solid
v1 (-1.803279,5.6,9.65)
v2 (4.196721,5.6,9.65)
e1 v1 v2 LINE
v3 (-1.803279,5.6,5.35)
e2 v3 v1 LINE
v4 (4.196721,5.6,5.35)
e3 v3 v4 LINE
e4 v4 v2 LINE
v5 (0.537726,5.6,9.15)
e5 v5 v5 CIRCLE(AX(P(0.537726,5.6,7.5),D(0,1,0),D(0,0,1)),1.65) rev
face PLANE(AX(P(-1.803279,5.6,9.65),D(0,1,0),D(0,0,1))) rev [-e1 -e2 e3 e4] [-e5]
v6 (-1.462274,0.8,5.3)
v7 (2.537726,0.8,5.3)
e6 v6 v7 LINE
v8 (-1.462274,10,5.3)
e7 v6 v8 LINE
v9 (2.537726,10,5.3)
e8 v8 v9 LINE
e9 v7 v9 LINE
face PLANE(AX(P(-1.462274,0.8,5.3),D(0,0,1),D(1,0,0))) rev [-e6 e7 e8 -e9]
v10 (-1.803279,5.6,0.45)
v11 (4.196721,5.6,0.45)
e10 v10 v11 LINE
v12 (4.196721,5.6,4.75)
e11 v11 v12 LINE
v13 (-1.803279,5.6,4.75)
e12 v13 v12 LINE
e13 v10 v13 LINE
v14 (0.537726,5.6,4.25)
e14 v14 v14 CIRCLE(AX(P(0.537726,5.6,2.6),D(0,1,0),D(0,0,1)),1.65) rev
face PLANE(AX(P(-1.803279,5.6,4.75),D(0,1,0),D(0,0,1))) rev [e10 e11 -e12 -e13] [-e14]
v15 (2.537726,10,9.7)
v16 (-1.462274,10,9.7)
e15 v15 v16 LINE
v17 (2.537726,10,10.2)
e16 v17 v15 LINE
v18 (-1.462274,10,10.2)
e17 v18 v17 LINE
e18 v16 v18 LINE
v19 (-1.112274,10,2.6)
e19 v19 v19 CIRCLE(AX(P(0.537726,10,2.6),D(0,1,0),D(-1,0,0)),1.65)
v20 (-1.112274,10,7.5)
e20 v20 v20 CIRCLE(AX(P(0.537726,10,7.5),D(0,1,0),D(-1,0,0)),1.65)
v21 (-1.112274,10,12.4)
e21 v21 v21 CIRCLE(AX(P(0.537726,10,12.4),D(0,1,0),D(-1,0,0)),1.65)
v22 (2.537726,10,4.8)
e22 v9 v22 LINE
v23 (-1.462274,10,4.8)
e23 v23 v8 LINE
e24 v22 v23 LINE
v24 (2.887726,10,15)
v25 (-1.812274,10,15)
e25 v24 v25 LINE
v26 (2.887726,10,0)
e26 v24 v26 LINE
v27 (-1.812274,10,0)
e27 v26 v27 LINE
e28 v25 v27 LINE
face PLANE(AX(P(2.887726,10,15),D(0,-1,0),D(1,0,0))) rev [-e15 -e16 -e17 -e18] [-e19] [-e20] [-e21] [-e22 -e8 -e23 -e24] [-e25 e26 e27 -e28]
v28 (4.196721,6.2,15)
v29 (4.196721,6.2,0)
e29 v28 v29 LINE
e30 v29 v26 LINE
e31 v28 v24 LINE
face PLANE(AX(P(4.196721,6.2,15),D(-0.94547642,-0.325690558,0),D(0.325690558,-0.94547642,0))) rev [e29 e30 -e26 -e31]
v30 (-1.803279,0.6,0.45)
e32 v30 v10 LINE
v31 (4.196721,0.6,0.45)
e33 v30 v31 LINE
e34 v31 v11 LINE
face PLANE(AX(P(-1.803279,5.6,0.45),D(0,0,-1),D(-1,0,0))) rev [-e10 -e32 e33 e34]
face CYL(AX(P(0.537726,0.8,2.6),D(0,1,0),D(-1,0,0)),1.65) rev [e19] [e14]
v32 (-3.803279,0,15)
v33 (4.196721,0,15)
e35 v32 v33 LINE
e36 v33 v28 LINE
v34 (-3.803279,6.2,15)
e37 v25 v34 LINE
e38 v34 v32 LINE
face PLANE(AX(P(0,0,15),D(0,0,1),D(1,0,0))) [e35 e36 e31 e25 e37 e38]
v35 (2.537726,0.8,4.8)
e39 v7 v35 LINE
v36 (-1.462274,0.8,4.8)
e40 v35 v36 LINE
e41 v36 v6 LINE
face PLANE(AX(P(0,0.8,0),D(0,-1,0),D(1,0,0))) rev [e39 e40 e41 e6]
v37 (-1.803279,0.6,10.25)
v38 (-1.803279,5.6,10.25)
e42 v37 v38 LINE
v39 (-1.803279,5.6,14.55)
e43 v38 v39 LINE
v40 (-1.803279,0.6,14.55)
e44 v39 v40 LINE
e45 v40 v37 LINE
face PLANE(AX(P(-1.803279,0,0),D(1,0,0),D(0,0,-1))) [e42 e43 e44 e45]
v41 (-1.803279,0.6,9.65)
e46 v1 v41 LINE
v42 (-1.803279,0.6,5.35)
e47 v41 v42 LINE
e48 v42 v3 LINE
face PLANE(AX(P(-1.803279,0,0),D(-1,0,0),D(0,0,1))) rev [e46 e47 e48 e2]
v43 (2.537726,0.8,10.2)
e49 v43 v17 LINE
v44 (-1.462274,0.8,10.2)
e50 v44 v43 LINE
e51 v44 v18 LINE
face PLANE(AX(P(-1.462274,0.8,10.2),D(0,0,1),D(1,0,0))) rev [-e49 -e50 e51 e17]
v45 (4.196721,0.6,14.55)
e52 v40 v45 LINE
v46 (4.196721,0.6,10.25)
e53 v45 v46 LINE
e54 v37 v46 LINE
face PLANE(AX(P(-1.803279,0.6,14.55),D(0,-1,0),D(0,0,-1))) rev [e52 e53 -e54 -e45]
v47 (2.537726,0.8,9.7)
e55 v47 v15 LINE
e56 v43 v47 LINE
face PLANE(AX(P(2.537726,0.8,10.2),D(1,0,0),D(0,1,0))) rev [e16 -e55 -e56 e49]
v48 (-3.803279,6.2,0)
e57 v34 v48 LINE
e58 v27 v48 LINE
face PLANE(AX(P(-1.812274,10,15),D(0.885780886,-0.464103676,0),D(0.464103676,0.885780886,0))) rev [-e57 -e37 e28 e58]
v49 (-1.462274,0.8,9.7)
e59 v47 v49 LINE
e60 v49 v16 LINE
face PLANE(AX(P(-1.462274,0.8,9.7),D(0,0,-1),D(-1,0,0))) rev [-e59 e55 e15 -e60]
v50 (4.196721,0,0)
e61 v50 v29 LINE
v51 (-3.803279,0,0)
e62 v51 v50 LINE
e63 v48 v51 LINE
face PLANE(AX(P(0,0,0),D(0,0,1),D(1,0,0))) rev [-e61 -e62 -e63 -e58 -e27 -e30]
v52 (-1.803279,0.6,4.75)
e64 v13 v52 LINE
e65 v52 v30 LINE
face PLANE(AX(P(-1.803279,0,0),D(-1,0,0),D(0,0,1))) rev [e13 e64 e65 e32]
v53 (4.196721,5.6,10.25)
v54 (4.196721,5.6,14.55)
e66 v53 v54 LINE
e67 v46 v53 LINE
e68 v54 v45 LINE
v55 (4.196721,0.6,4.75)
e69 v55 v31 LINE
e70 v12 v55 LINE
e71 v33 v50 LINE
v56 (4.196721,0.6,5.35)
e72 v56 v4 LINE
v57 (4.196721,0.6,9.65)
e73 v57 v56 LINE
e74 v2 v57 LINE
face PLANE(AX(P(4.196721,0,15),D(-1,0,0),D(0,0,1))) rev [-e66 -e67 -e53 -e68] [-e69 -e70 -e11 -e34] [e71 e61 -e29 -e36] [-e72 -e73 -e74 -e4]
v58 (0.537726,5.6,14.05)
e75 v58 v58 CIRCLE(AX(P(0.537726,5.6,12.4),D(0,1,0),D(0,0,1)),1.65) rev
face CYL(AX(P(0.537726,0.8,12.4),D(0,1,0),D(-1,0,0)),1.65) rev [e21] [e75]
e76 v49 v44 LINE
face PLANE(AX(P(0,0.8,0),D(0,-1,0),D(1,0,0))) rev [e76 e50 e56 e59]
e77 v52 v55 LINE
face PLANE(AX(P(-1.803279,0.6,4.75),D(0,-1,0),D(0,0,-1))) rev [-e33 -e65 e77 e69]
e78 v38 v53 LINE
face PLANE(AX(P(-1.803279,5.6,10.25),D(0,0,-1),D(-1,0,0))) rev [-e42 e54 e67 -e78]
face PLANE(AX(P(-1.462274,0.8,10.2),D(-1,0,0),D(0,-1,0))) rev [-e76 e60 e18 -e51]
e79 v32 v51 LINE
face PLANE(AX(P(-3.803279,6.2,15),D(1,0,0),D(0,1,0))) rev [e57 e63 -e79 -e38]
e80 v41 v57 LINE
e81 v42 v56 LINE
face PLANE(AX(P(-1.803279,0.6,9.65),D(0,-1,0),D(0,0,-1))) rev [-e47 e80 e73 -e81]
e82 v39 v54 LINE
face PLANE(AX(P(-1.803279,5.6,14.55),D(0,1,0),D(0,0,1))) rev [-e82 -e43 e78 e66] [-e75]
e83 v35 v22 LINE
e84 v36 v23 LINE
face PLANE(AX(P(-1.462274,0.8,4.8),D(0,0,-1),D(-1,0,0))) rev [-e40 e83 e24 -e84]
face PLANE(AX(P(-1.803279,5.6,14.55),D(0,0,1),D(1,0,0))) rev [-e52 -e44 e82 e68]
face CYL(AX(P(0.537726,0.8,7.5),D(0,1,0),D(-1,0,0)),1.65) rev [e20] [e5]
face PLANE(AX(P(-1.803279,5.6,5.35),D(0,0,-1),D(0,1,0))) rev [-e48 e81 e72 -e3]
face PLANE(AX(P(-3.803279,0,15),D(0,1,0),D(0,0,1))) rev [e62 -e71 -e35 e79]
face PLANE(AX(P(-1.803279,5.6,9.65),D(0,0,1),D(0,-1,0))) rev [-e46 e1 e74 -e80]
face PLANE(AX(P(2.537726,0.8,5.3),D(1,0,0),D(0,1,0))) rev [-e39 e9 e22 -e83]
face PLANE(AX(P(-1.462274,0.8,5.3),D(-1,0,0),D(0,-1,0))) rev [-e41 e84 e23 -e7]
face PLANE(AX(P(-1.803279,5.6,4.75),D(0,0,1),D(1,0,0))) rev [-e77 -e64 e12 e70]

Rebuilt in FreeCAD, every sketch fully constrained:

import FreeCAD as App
import Part
import Sketcher
from FreeCAD import Vector
Q = App.Units.Quantity

doc = App.newDocument("Part")
body = doc.addObject("PartDesign::Body", "Body")

# Sketch on XY plane
sketch1 = doc.addObject("Sketcher::SketchObject", "Sketch")
body.addObject(sketch1)
sketch1.AttachmentSupport = (doc.XY_Plane, [""])
sketch1.MapMode = "FlatFace"
sketch1.addGeometry([
    Part.LineSegment(Vector(-3.8, 0, 0), Vector(4.2, 0, 0)),  # 0
    Part.LineSegment(Vector(4.2, 0, 0), Vector(4.2, 6.2, 0)),  # 1
    Part.LineSegment(Vector(4.2, 6.2, 0), Vector(2.9, 10, 0)),  # 2
    Part.LineSegment(Vector(2.9, 10, 0), Vector(-1.8, 10, 0)),  # 3
    Part.LineSegment(Vector(-1.8, 10, 0), Vector(-3.8, 6.2, 0)),  # 4
    Part.LineSegment(Vector(-3.8, 6.2, 0), Vector(-3.8, 0, 0)),  # 5
], False)
sketch1.addConstraint([
    Sketcher.Constraint("Coincident", 0, 2, 1, 1),
    Sketcher.Constraint("Coincident", 1, 2, 2, 1),
    Sketcher.Constraint("Coincident", 2, 2, 3, 1),
    Sketcher.Constraint("Coincident", 3, 2, 4, 1),
    Sketcher.Constraint("Coincident", 4, 2, 5, 1),
    Sketcher.Constraint("Coincident", 5, 2, 0, 1),
    Sketcher.Constraint("Horizontal", 0),
    Sketcher.Constraint("Vertical", 1),
    Sketcher.Constraint("Horizontal", 3),
    Sketcher.Constraint("Vertical", 5),
    Sketcher.Constraint("PointOnObject", 0, 2, -1),
    Sketcher.Constraint("Horizontal", 1, 2, 4, 2),
    Sketcher.Constraint("DistanceX", 0, 1, 0, 2, Q("8 mm")),
    Sketcher.Constraint("DistanceX", 3, 2, 3, 1, Q("4.7 mm")),
    Sketcher.Constraint("DistanceY", 1, 1, 1, 2, Q("6.2 mm")),
    Sketcher.Constraint("DistanceY", -1, 1, 2, 2, Q("10 mm")),
    Sketcher.Constraint("Distance", 4, Q("4.29 mm")),
    Sketcher.Constraint("DistanceX", -1, 1, 0, 2, Q("4.196721 mm")),
])
pad1 = doc.addObject("PartDesign::Pad", "Pad")
body.addObject(pad1)
pad1.Profile = sketch1
pad1.Length = 15

# Sketch on XZ plane
sketch2 = doc.addObject("Sketcher::SketchObject", "Sketch001")
body.addObject(sketch2)
sketch2.AttachmentSupport = (doc.XZ_Plane, [""])
sketch2.MapMode = "FlatFace"
sketch2.AttachmentOffset = App.Placement(Vector(0, 0, -10), App.Rotation())
sketch2.addGeometry([
    Part.Circle(Vector(0.5, 12.4, 0), Vector(0, 0, 1), 1.6),  # 0
    Part.Circle(Vector(0.5, 7.5, 0), Vector(0, 0, 1), 1.6),  # 1
    Part.Circle(Vector(0.5, 2.6, 0), Vector(0, 0, 1), 1.6),  # 2
    Part.LineSegment(Vector(-1.5, 9.7, 0), Vector(-1.5, 10.2, 0)),  # 3
    Part.LineSegment(Vector(-1.5, 10.2, 0), Vector(2.5, 10.2, 0)),  # 4
    Part.LineSegment(Vector(2.5, 10.2, 0), Vector(2.5, 9.7, 0)),  # 5
    Part.LineSegment(Vector(2.5, 9.7, 0), Vector(-1.5, 9.7, 0)),  # 6
    Part.LineSegment(Vector(-1.5, 4.8, 0), Vector(-1.5, 5.3, 0)),  # 7
    Part.LineSegment(Vector(-1.5, 5.3, 0), Vector(2.5, 5.3, 0)),  # 8
    Part.LineSegment(Vector(2.5, 5.3, 0), Vector(2.5, 4.8, 0)),  # 9
    Part.LineSegment(Vector(2.5, 4.8, 0), Vector(-1.5, 4.8, 0)),  # 10
], False)
sketch2.addConstraint([
    Sketcher.Constraint("Coincident", 3, 2, 4, 1),
    Sketcher.Constraint("Coincident", 4, 2, 5, 1),
    Sketcher.Constraint("Coincident", 5, 2, 6, 1),
    Sketcher.Constraint("Coincident", 6, 2, 3, 1),
    Sketcher.Constraint("Coincident", 7, 2, 8, 1),
    Sketcher.Constraint("Coincident", 8, 2, 9, 1),
    Sketcher.Constraint("Coincident", 9, 2, 10, 1),
    Sketcher.Constraint("Coincident", 10, 2, 7, 1),
    Sketcher.Constraint("Vertical", 3),
    Sketcher.Constraint("Horizontal", 4),
    Sketcher.Constraint("Vertical", 5),
    Sketcher.Constraint("Horizontal", 6),
    Sketcher.Constraint("Vertical", 7),
    Sketcher.Constraint("Horizontal", 8),
    Sketcher.Constraint("Vertical", 9),
    Sketcher.Constraint("Horizontal", 10),
    Sketcher.Constraint("Equal", 0, 1),
    Sketcher.Constraint("Equal", 1, 2),
    Sketcher.Constraint("Vertical", 0, 3, 1, 3),
    Sketcher.Constraint("Vertical", 1, 3, 2, 3),
    Sketcher.Constraint("Vertical", 6, 2, 7, 2),
    Sketcher.Constraint("Vertical", 5, 2, 8, 2),
    Sketcher.Constraint("Equal", 5, 7),
    Sketcher.Constraint("Diameter", 0, Q("3.3 mm")),
    Sketcher.Constraint("DistanceX", 4, 1, 4, 2, Q("4 mm")),
    Sketcher.Constraint("DistanceY", 3, 1, 3, 2, Q("0.5 mm")),
    Sketcher.Constraint("DistanceX", 3, 2, 0, 3, Q("2 mm")),
    Sketcher.Constraint("DistanceY", -1, 1, 0, 3, Q("12.4 mm")),
    Sketcher.Constraint("DistanceY", -1, 1, 1, 3, Q("7.5 mm")),
    Sketcher.Constraint("DistanceY", -1, 1, 2, 3, Q("2.6 mm")),
    Sketcher.Constraint("DistanceY", -1, 1, 3, 2, Q("10.2 mm")),
    Sketcher.Constraint("DistanceY", -1, 1, 7, 2, Q("5.3 mm")),
    Sketcher.Constraint("DistanceX", -1, 1, 0, 3, Q("0.537726 mm")),
])
pocket1 = doc.addObject("PartDesign::Pocket", "Pocket")
body.addObject(pocket1)
pocket1.Profile = sketch2
pocket1.Length = 9.2
pocket1.Reversed = True

# Sketch on YZ plane
sketch3 = doc.addObject("Sketcher::SketchObject", "Sketch002")
body.addObject(sketch3)
sketch3.AttachmentSupport = (doc.YZ_Plane, [""])
sketch3.MapMode = "FlatFace"
sketch3.AttachmentOffset = App.Placement(Vector(0, 0, 4.196721), App.Rotation())
sketch3.addGeometry([
    Part.LineSegment(Vector(5.6, 14.6, 0), Vector(0.6, 14.6, 0)),  # 0
    Part.LineSegment(Vector(0.6, 14.6, 0), Vector(0.6, 10.2, 0)),  # 1
    Part.LineSegment(Vector(0.6, 10.2, 0), Vector(5.6, 10.2, 0)),  # 2
    Part.LineSegment(Vector(5.6, 10.2, 0), Vector(5.6, 14.6, 0)),  # 3
    Part.LineSegment(Vector(5.6, 9.7, 0), Vector(0.6, 9.7, 0)),  # 4
    Part.LineSegment(Vector(0.6, 9.7, 0), Vector(0.6, 5.3, 0)),  # 5
    Part.LineSegment(Vector(0.6, 5.3, 0), Vector(5.6, 5.3, 0)),  # 6
    Part.LineSegment(Vector(5.6, 5.3, 0), Vector(5.6, 9.7, 0)),  # 7
    Part.LineSegment(Vector(5.6, 4.8, 0), Vector(0.6, 4.8, 0)),  # 8
    Part.LineSegment(Vector(0.6, 4.8, 0), Vector(0.6, 0.5, 0)),  # 9
    Part.LineSegment(Vector(0.6, 0.5, 0), Vector(5.6, 0.5, 0)),  # 10
    Part.LineSegment(Vector(5.6, 0.5, 0), Vector(5.6, 4.8, 0)),  # 11
], False)
sketch3.addConstraint([
    Sketcher.Constraint("Coincident", 0, 2, 1, 1),
    Sketcher.Constraint("Coincident", 1, 2, 2, 1),
    Sketcher.Constraint("Coincident", 2, 2, 3, 1),
    Sketcher.Constraint("Coincident", 3, 2, 0, 1),
    Sketcher.Constraint("Coincident", 4, 2, 5, 1),
    Sketcher.Constraint("Coincident", 5, 2, 6, 1),
    Sketcher.Constraint("Coincident", 6, 2, 7, 1),
    Sketcher.Constraint("Coincident", 7, 2, 4, 1),
    Sketcher.Constraint("Coincident", 8, 2, 9, 1),
    Sketcher.Constraint("Coincident", 9, 2, 10, 1),
    Sketcher.Constraint("Coincident", 10, 2, 11, 1),
    Sketcher.Constraint("Coincident", 11, 2, 8, 1),
    Sketcher.Constraint("Horizontal", 0),
    Sketcher.Constraint("Vertical", 1),
    Sketcher.Constraint("Horizontal", 2),
    Sketcher.Constraint("Vertical", 3),
    Sketcher.Constraint("Horizontal", 4),
    Sketcher.Constraint("Vertical", 5),
    Sketcher.Constraint("Horizontal", 6),
    Sketcher.Constraint("Vertical", 7),
    Sketcher.Constraint("Horizontal", 8),
    Sketcher.Constraint("Vertical", 9),
    Sketcher.Constraint("Horizontal", 10),
    Sketcher.Constraint("Vertical", 11),
    Sketcher.Constraint("Vertical", 1, 2, 4, 2),
    Sketcher.Constraint("Vertical", 3, 2, 6, 2),
    Sketcher.Constraint("Vertical", 5, 2, 8, 2),
    Sketcher.Constraint("Vertical", 7, 2, 10, 2),
    Sketcher.Constraint("Equal", 3, 5),
    Sketcher.Constraint("Equal", 7, 9),
    Sketcher.Constraint("DistanceX", 0, 2, 0, 1, Q("5 mm")),
    Sketcher.Constraint("DistanceY", 1, 2, 1, 1, Q("4.3 mm")),
    Sketcher.Constraint("DistanceX", -1, 1, 0, 2, Q("0.6 mm")),
    Sketcher.Constraint("DistanceY", 4, 2, 1, 2, Q("0.6 mm")),
    Sketcher.Constraint("DistanceY", 8, 2, 5, 2, Q("0.6 mm")),
    Sketcher.Constraint("DistanceY", -1, 1, 0, 2, Q("14.55 mm")),
])
pocket2 = doc.addObject("PartDesign::Pocket", "Pocket001")
body.addObject(pocket2)
pocket2.Profile = sketch3
pocket2.Length = 6

doc.recompute()
